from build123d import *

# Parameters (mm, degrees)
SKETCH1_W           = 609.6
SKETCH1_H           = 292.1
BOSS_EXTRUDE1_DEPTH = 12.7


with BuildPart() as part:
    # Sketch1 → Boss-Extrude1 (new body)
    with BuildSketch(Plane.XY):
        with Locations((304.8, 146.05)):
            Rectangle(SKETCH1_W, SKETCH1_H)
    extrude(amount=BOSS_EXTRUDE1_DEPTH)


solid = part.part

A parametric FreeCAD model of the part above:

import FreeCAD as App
import Part
import Sketcher
Q = App.Units.Quantity


def add_polygon(sketch, points):
    """Adds a closed chain of lines whose ends are joined by coincident constraints."""
    first, n = sketch.GeometryCount, len(points)
    for a, b in zip(points, points[1:] + points[:1]):
        sketch.addGeometry(Part.LineSegment(App.Vector(*a, 0), App.Vector(*b, 0)), False)
    for i in range(n):
        sketch.addConstraint(Sketcher.Constraint("Coincident", first + i, 2, first + (i + 1) % n, 1))

doc = App.newDocument("Part")
body = doc.addObject("PartDesign::Body", "Body")

sketch1 = doc.addObject("Sketcher::SketchObject", "Sketch")
body.addObject(sketch1)
sketch1.AttachmentSupport = (doc.XY_Plane, [""])
sketch1.MapMode = "FlatFace"
add_polygon(sketch1, [(0, 292.1), (0, 0), (609.6, 0), (609.6, 292.1)])
sketch1.addConstraint(Sketcher.Constraint("Vertical", 0))
sketch1.addConstraint(Sketcher.Constraint("Horizontal", 1))
sketch1.addConstraint(Sketcher.Constraint("Vertical", 2))
sketch1.addConstraint(Sketcher.Constraint("Horizontal", 3))
sketch1.addConstraint(Sketcher.Constraint("Coincident", 0, 2, -1, 1))
sketch1.addConstraint(Sketcher.Constraint("DistanceX", 1, 1, 1, 2, Q("24 in")))
sketch1.addConstraint(Sketcher.Constraint("DistanceY", 0, 2, 0, 1, Q("11.5 in")))
pad1 = doc.addObject("PartDesign::Pad", "Pad")
body.addObject(pad1)
pad1.Profile = sketch1
pad1.Length = Q("0.5 in")

doc.recompute()
